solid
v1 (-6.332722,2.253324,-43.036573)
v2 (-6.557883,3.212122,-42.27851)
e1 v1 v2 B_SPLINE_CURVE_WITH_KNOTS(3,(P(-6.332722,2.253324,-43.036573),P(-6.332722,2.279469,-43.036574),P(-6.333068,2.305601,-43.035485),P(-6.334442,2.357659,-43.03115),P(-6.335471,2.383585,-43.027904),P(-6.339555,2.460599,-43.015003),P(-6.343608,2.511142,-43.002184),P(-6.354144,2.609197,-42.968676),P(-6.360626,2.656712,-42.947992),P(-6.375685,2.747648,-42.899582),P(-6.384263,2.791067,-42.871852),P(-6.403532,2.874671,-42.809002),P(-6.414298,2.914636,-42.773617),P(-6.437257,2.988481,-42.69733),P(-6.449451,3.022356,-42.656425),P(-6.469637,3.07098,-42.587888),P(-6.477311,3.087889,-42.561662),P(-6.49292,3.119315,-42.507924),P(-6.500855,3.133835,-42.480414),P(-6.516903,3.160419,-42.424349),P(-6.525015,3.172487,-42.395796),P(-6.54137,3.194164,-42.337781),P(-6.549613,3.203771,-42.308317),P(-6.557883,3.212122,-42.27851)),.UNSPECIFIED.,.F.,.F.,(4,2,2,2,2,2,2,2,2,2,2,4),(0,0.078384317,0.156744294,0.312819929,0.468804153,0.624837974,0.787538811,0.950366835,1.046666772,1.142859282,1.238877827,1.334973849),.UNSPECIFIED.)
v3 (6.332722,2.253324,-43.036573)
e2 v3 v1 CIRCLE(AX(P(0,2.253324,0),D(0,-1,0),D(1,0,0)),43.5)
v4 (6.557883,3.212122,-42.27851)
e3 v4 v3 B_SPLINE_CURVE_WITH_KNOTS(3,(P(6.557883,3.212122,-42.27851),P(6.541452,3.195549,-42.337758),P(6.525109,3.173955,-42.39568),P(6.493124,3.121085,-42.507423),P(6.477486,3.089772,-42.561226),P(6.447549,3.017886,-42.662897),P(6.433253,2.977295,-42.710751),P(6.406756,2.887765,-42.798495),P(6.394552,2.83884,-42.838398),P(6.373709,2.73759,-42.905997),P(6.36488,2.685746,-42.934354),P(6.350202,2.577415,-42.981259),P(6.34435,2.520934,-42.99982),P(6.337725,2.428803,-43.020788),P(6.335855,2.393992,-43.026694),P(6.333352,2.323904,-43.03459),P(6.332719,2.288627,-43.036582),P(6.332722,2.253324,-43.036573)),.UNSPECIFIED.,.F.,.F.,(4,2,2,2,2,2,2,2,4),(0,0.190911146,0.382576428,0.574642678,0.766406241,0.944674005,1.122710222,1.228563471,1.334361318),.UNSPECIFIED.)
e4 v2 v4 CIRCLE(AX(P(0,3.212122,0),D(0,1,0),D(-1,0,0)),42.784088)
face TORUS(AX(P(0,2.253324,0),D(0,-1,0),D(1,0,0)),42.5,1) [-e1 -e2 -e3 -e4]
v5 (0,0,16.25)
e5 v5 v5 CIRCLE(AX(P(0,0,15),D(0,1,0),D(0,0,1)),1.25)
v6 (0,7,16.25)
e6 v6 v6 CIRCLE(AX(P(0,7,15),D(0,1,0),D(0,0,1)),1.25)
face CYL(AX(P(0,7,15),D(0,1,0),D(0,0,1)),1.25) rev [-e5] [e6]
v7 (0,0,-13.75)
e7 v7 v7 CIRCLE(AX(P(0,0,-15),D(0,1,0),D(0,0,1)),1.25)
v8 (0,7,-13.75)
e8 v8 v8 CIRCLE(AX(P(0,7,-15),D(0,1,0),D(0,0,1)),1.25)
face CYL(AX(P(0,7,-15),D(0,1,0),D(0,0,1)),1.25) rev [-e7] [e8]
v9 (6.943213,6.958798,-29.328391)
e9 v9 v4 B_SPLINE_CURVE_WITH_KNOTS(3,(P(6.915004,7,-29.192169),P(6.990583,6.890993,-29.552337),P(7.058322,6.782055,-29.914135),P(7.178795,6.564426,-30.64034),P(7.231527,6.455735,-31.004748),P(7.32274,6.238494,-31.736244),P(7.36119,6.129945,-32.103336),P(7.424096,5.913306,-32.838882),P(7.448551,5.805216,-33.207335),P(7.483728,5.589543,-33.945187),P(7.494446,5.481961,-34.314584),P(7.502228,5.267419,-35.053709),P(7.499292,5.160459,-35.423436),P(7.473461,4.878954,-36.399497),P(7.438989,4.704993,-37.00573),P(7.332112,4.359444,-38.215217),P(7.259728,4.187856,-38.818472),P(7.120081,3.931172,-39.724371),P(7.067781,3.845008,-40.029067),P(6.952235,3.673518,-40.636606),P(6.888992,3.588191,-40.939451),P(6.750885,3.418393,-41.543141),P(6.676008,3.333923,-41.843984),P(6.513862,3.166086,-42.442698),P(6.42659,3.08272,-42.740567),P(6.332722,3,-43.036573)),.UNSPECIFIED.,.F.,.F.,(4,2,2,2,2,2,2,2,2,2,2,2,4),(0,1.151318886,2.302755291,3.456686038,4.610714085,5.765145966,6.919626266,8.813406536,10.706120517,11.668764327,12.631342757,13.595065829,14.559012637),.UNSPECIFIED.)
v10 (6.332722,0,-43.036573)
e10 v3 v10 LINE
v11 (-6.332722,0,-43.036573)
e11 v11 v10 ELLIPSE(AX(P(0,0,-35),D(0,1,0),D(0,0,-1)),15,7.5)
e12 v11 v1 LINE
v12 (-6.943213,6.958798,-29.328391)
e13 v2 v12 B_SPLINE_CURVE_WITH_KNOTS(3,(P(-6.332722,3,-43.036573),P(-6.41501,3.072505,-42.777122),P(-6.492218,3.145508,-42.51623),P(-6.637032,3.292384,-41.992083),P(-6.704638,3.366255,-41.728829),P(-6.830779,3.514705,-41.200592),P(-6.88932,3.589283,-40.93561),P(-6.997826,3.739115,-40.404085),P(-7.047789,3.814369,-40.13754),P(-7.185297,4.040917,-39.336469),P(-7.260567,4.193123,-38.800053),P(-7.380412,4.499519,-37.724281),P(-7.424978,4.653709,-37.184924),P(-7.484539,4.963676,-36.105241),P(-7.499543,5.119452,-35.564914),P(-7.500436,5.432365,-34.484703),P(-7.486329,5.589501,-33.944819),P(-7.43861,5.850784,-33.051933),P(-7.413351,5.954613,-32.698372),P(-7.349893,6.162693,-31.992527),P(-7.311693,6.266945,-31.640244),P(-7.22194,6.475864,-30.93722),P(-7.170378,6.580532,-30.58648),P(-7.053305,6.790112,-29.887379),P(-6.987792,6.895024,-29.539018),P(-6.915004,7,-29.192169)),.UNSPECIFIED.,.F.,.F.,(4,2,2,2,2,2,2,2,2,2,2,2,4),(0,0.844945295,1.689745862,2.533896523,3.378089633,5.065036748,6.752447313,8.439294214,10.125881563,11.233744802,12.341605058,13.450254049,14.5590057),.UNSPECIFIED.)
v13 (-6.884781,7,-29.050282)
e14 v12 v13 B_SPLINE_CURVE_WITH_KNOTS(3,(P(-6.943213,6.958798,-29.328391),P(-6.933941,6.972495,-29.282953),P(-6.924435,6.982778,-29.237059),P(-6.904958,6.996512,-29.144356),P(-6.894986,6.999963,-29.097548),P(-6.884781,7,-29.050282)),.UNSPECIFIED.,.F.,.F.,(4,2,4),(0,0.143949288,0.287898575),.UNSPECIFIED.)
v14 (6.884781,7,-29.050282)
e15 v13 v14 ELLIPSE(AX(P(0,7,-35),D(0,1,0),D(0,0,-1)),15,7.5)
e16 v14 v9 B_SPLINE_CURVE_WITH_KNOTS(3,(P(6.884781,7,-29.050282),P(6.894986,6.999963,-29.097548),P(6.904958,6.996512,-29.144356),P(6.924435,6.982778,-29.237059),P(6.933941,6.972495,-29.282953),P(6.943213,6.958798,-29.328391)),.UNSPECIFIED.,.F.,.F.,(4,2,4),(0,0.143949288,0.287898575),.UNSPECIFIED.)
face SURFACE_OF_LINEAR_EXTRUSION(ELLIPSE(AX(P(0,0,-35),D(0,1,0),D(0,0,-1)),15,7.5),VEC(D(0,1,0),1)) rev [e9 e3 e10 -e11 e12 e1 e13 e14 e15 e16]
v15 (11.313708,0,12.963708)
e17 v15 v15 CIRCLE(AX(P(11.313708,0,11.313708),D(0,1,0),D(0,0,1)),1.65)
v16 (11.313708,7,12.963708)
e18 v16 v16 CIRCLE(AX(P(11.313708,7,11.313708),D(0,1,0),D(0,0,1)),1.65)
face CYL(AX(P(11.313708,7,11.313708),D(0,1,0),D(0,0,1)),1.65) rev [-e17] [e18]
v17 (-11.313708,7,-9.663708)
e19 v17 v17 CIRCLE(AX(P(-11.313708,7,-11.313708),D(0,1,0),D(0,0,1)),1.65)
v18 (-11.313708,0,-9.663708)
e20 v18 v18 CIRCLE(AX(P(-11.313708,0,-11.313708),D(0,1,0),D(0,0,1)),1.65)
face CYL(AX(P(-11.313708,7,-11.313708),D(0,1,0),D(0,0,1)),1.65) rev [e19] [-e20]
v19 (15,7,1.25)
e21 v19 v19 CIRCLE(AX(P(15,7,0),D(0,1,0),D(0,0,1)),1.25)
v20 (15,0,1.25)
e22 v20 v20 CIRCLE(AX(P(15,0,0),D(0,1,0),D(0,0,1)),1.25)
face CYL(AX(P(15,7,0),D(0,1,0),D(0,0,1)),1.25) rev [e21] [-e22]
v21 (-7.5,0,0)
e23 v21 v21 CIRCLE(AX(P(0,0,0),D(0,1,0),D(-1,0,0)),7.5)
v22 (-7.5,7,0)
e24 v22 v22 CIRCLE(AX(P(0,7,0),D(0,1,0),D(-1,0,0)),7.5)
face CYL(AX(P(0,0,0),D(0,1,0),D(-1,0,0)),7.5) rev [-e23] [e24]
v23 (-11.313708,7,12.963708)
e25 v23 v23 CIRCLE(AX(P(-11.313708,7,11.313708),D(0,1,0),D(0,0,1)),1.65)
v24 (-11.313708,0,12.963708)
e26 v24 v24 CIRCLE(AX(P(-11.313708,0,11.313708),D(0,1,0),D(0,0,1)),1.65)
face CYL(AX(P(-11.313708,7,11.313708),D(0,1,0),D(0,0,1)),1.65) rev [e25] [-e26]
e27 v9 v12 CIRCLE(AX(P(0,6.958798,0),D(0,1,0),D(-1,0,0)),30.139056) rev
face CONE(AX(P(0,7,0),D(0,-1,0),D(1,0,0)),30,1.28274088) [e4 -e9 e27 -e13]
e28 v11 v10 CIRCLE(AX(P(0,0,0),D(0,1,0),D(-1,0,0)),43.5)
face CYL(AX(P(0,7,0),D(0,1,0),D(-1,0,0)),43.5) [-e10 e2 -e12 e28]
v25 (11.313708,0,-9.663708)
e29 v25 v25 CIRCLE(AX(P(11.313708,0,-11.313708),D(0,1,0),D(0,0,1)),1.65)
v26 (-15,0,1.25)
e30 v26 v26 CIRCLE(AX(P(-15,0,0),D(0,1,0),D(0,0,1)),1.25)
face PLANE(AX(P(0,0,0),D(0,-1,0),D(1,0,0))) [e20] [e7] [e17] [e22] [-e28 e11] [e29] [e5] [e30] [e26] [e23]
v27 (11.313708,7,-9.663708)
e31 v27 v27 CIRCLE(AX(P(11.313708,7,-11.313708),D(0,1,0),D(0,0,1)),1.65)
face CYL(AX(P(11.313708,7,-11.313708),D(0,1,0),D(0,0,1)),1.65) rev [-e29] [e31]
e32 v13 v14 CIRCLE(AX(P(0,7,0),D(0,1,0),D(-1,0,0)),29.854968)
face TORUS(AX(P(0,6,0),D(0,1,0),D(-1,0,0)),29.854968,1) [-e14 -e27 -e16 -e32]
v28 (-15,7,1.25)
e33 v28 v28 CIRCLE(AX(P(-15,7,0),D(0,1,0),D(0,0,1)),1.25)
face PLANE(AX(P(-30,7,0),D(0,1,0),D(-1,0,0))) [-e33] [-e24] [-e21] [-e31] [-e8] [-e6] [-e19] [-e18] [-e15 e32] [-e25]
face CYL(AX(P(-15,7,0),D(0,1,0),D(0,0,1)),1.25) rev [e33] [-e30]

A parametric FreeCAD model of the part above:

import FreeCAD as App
import Part
import Sketcher

V = App.Vector
Q = App.Units.Quantity


def edges_at(feature, points):
    """Names of the edges that pass closest to the given points."""
    edges = feature.Shape.Edges
    near = lambda p: min(range(len(edges)), key=lambda i: edges[i].distToShape(Part.Vertex(*p))[0])
    return sorted({f"Edge{near(p) + 1}" for p in points})


def add_polygon(sketch, points):
    """Adds a closed chain of lines whose ends are joined by coincident constraints."""
    first, n = sketch.GeometryCount, len(points)
    for a, b in zip(points, points[1:] + points[:1]):
        sketch.addGeometry(Part.LineSegment(App.Vector(*a, 0), App.Vector(*b, 0)), False)
    for i in range(n):
        sketch.addConstraint(Sketcher.Constraint("Coincident", first + i, 2, first + (i + 1) % n, 1))

doc = App.newDocument("Part")
body = doc.addObject("PartDesign::Body", "Body")

# Sketch on XY plane
sketch1 = body.newObject("Sketcher::SketchObject", "Sketch")
sketch1.AttachmentSupport = (doc.getObject("XY_Plane"), [""])
sketch1.MapMode = "FlatFace"
add_polygon(sketch1, [(-43.5, 0), (0, 0), (0, 7), (-30, 7), (-43.5, 3)])  # lines 0-4
sketch1.addConstraint([
    Sketcher.Constraint("Horizontal", 0),
    Sketcher.Constraint("Vertical", 1),
    Sketcher.Constraint("Horizontal", 2),
    Sketcher.Constraint("Vertical", 4),
    Sketcher.Constraint("Coincident", 0, 2, -1, 1),
    Sketcher.Constraint("DistanceX", 2, 2, 2, 1, Q("30 mm")),
    Sketcher.Constraint("DistanceY", 1, 1, 1, 2, Q("7 mm")),
    Sketcher.Constraint("DistanceY", 4, 2, 4, 1, Q("3 mm")),
    Sketcher.Constraint("DistanceX", 0, 1, 0, 2, Q("43.5 mm")),
])
revolution = body.newObject("PartDesign::Revolution", "Revolution")
revolution.Profile = sketch1
revolution.ReferenceAxis = (sketch1, ["V_Axis"])
revolution.Angle = 360

# Sketch on XZ plane
sketch2 = body.newObject("Sketcher::SketchObject", "Sketch001")
sketch2.AttachmentSupport = (doc.getObject("XZ_Plane"), [""])
sketch2.MapMode = "FlatFace"
sketch2.AttachmentOffset = App.Placement(V(0, 0, -7), App.Rotation())
sketch2.addGeometry(Part.Circle(V(0, 0, 0), V(0, 0, 1), 8), False)
sketch2.addConstraint([
    Sketcher.Constraint("Coincident", 0, 3, -1, 1),
    Sketcher.Constraint("Diameter", 0, Q("15 mm")),
])
pocket1 = body.newObject("PartDesign::Pocket", "Pocket")
pocket1.Profile = sketch2
pocket1.Type = "ThroughAll"
pocket1.Reversed = True

# Sketch on XZ plane
sketch3 = body.newObject("Sketcher::SketchObject", "Sketch002")
sketch3.AttachmentSupport = (doc.getObject("XZ_Plane"), [""])
sketch3.MapMode = "FlatFace"
sketch3.AttachmentOffset = App.Placement(V(0, 0, -7), App.Rotation())
sketch3.addGeometry(Part.Ellipse(V(0, -20, 0), V(-7.5, -35, 0), V(0, -35, 0)), False)
sketch3.addConstraint(Sketcher.Constraint("Block", 0))
pocket2 = body.newObject("PartDesign::Pocket", "Pocket001")
pocket2.Profile = sketch3
pocket2.Type = "ThroughAll"
pocket2.Reversed = True

# Sketch on XZ plane
sketch4 = body.newObject("Sketcher::SketchObject", "Sketch003")
sketch4.AttachmentSupport = (doc.getObject("XZ_Plane"), [""])
sketch4.MapMode = "FlatFace"
sketch4.AttachmentOffset = App.Placement(V(0, 0, -7), App.Rotation())
sketch4.addGeometry([
    Part.Circle(V(0, -15, 0), V(0, 0, 1), 1.2),
    Part.Circle(V(-15, 0, 0), V(0, 0, 1), 1.2),
    Part.Circle(V(0, 15, 0), V(0, 0, 1), 1.2),
    Part.Circle(V(15, 0, 0), V(0, 0, 1), 1.2),
], False)
sketch4.addConstraint([
    Sketcher.Constraint("Equal", 0, 1),
    Sketcher.Constraint("Equal", 1, 2),
    Sketcher.Constraint("Equal", 2, 3),
    Sketcher.Constraint("Symmetric", 0, 3, 2, 3, -1, 1),
    Sketcher.Constraint("Symmetric", 1, 3, 3, 3, -1, 1),
    Sketcher.Constraint("PointOnObject", 0, 3, -2),
    Sketcher.Constraint("PointOnObject", 1, 3, -1),
    Sketcher.Constraint("Diameter", 0, Q("2.5 mm")),
    Sketcher.Constraint("DistanceY", 0, 3, -1, 1, Q("15 mm")),
    Sketcher.Constraint("DistanceX", 1, 3, -1, 1, Q("15 mm")),
])
doc.recompute()
hole = body.newObject("PartDesign::Hole", "Hole")
hole.Profile = sketch4
hole.ThreadType = "None"
hole.Diameter = 2.5
hole.DepthType = "ThroughAll"
hole.Reversed = True

# Sketch on XZ plane
sketch5 = body.newObject("Sketcher::SketchObject", "Sketch004")
sketch5.AttachmentSupport = (doc.getObject("XZ_Plane"), [""])
sketch5.MapMode = "FlatFace"
sketch5.AttachmentOffset = App.Placement(V(0, 0, -7), App.Rotation())
sketch5.addGeometry([
    Part.Circle(V(-11.3, -11.3, 0), V(0, 0, 1), 1.6),
    Part.Circle(V(11.3, -11.3, 0), V(0, 0, 1), 1.6),
    Part.Circle(V(11.3, 11.3, 0), V(0, 0, 1), 1.6),
    Part.Circle(V(-11.3, 11.3, 0), V(0, 0, 1), 1.6),
], False)
sketch5.addConstraint([
    Sketcher.Constraint("Equal", 0, 1),
    Sketcher.Constraint("Equal", 1, 2),
    Sketcher.Constraint("Equal", 2, 3),
    Sketcher.Constraint("Symmetric", 0, 3, 2, 3, -1, 1),
    Sketcher.Constraint("Symmetric", 1, 3, 3, 3, -1, 1),
    Sketcher.Constraint("Symmetric", 0, 3, 1, 3, -2),
    Sketcher.Constraint("Diameter", 0, Q("3.3 mm")),
    Sketcher.Constraint("DistanceX", 0, 3, -1, 1, Q("11.313708 mm")),
    Sketcher.Constraint("DistanceY", 0, 3, -1, 1, Q("11.313708 mm")),
])
doc.recompute()
hole2 = body.newObject("PartDesign::Hole", "Hole001")
hole2.Profile = sketch5
hole2.ThreadType = "None"
hole2.Diameter = 3.3
hole2.DepthType = "ThroughAll"
hole2.Reversed = True
doc.recompute()

fillet = body.newObject("PartDesign::Fillet", "Fillet")
fillet.Base = (hole2, edges_at(hole2, [(0, 7, 30), (0, 3, 43.5)]))
fillet.Radius = 1

doc.recompute()
